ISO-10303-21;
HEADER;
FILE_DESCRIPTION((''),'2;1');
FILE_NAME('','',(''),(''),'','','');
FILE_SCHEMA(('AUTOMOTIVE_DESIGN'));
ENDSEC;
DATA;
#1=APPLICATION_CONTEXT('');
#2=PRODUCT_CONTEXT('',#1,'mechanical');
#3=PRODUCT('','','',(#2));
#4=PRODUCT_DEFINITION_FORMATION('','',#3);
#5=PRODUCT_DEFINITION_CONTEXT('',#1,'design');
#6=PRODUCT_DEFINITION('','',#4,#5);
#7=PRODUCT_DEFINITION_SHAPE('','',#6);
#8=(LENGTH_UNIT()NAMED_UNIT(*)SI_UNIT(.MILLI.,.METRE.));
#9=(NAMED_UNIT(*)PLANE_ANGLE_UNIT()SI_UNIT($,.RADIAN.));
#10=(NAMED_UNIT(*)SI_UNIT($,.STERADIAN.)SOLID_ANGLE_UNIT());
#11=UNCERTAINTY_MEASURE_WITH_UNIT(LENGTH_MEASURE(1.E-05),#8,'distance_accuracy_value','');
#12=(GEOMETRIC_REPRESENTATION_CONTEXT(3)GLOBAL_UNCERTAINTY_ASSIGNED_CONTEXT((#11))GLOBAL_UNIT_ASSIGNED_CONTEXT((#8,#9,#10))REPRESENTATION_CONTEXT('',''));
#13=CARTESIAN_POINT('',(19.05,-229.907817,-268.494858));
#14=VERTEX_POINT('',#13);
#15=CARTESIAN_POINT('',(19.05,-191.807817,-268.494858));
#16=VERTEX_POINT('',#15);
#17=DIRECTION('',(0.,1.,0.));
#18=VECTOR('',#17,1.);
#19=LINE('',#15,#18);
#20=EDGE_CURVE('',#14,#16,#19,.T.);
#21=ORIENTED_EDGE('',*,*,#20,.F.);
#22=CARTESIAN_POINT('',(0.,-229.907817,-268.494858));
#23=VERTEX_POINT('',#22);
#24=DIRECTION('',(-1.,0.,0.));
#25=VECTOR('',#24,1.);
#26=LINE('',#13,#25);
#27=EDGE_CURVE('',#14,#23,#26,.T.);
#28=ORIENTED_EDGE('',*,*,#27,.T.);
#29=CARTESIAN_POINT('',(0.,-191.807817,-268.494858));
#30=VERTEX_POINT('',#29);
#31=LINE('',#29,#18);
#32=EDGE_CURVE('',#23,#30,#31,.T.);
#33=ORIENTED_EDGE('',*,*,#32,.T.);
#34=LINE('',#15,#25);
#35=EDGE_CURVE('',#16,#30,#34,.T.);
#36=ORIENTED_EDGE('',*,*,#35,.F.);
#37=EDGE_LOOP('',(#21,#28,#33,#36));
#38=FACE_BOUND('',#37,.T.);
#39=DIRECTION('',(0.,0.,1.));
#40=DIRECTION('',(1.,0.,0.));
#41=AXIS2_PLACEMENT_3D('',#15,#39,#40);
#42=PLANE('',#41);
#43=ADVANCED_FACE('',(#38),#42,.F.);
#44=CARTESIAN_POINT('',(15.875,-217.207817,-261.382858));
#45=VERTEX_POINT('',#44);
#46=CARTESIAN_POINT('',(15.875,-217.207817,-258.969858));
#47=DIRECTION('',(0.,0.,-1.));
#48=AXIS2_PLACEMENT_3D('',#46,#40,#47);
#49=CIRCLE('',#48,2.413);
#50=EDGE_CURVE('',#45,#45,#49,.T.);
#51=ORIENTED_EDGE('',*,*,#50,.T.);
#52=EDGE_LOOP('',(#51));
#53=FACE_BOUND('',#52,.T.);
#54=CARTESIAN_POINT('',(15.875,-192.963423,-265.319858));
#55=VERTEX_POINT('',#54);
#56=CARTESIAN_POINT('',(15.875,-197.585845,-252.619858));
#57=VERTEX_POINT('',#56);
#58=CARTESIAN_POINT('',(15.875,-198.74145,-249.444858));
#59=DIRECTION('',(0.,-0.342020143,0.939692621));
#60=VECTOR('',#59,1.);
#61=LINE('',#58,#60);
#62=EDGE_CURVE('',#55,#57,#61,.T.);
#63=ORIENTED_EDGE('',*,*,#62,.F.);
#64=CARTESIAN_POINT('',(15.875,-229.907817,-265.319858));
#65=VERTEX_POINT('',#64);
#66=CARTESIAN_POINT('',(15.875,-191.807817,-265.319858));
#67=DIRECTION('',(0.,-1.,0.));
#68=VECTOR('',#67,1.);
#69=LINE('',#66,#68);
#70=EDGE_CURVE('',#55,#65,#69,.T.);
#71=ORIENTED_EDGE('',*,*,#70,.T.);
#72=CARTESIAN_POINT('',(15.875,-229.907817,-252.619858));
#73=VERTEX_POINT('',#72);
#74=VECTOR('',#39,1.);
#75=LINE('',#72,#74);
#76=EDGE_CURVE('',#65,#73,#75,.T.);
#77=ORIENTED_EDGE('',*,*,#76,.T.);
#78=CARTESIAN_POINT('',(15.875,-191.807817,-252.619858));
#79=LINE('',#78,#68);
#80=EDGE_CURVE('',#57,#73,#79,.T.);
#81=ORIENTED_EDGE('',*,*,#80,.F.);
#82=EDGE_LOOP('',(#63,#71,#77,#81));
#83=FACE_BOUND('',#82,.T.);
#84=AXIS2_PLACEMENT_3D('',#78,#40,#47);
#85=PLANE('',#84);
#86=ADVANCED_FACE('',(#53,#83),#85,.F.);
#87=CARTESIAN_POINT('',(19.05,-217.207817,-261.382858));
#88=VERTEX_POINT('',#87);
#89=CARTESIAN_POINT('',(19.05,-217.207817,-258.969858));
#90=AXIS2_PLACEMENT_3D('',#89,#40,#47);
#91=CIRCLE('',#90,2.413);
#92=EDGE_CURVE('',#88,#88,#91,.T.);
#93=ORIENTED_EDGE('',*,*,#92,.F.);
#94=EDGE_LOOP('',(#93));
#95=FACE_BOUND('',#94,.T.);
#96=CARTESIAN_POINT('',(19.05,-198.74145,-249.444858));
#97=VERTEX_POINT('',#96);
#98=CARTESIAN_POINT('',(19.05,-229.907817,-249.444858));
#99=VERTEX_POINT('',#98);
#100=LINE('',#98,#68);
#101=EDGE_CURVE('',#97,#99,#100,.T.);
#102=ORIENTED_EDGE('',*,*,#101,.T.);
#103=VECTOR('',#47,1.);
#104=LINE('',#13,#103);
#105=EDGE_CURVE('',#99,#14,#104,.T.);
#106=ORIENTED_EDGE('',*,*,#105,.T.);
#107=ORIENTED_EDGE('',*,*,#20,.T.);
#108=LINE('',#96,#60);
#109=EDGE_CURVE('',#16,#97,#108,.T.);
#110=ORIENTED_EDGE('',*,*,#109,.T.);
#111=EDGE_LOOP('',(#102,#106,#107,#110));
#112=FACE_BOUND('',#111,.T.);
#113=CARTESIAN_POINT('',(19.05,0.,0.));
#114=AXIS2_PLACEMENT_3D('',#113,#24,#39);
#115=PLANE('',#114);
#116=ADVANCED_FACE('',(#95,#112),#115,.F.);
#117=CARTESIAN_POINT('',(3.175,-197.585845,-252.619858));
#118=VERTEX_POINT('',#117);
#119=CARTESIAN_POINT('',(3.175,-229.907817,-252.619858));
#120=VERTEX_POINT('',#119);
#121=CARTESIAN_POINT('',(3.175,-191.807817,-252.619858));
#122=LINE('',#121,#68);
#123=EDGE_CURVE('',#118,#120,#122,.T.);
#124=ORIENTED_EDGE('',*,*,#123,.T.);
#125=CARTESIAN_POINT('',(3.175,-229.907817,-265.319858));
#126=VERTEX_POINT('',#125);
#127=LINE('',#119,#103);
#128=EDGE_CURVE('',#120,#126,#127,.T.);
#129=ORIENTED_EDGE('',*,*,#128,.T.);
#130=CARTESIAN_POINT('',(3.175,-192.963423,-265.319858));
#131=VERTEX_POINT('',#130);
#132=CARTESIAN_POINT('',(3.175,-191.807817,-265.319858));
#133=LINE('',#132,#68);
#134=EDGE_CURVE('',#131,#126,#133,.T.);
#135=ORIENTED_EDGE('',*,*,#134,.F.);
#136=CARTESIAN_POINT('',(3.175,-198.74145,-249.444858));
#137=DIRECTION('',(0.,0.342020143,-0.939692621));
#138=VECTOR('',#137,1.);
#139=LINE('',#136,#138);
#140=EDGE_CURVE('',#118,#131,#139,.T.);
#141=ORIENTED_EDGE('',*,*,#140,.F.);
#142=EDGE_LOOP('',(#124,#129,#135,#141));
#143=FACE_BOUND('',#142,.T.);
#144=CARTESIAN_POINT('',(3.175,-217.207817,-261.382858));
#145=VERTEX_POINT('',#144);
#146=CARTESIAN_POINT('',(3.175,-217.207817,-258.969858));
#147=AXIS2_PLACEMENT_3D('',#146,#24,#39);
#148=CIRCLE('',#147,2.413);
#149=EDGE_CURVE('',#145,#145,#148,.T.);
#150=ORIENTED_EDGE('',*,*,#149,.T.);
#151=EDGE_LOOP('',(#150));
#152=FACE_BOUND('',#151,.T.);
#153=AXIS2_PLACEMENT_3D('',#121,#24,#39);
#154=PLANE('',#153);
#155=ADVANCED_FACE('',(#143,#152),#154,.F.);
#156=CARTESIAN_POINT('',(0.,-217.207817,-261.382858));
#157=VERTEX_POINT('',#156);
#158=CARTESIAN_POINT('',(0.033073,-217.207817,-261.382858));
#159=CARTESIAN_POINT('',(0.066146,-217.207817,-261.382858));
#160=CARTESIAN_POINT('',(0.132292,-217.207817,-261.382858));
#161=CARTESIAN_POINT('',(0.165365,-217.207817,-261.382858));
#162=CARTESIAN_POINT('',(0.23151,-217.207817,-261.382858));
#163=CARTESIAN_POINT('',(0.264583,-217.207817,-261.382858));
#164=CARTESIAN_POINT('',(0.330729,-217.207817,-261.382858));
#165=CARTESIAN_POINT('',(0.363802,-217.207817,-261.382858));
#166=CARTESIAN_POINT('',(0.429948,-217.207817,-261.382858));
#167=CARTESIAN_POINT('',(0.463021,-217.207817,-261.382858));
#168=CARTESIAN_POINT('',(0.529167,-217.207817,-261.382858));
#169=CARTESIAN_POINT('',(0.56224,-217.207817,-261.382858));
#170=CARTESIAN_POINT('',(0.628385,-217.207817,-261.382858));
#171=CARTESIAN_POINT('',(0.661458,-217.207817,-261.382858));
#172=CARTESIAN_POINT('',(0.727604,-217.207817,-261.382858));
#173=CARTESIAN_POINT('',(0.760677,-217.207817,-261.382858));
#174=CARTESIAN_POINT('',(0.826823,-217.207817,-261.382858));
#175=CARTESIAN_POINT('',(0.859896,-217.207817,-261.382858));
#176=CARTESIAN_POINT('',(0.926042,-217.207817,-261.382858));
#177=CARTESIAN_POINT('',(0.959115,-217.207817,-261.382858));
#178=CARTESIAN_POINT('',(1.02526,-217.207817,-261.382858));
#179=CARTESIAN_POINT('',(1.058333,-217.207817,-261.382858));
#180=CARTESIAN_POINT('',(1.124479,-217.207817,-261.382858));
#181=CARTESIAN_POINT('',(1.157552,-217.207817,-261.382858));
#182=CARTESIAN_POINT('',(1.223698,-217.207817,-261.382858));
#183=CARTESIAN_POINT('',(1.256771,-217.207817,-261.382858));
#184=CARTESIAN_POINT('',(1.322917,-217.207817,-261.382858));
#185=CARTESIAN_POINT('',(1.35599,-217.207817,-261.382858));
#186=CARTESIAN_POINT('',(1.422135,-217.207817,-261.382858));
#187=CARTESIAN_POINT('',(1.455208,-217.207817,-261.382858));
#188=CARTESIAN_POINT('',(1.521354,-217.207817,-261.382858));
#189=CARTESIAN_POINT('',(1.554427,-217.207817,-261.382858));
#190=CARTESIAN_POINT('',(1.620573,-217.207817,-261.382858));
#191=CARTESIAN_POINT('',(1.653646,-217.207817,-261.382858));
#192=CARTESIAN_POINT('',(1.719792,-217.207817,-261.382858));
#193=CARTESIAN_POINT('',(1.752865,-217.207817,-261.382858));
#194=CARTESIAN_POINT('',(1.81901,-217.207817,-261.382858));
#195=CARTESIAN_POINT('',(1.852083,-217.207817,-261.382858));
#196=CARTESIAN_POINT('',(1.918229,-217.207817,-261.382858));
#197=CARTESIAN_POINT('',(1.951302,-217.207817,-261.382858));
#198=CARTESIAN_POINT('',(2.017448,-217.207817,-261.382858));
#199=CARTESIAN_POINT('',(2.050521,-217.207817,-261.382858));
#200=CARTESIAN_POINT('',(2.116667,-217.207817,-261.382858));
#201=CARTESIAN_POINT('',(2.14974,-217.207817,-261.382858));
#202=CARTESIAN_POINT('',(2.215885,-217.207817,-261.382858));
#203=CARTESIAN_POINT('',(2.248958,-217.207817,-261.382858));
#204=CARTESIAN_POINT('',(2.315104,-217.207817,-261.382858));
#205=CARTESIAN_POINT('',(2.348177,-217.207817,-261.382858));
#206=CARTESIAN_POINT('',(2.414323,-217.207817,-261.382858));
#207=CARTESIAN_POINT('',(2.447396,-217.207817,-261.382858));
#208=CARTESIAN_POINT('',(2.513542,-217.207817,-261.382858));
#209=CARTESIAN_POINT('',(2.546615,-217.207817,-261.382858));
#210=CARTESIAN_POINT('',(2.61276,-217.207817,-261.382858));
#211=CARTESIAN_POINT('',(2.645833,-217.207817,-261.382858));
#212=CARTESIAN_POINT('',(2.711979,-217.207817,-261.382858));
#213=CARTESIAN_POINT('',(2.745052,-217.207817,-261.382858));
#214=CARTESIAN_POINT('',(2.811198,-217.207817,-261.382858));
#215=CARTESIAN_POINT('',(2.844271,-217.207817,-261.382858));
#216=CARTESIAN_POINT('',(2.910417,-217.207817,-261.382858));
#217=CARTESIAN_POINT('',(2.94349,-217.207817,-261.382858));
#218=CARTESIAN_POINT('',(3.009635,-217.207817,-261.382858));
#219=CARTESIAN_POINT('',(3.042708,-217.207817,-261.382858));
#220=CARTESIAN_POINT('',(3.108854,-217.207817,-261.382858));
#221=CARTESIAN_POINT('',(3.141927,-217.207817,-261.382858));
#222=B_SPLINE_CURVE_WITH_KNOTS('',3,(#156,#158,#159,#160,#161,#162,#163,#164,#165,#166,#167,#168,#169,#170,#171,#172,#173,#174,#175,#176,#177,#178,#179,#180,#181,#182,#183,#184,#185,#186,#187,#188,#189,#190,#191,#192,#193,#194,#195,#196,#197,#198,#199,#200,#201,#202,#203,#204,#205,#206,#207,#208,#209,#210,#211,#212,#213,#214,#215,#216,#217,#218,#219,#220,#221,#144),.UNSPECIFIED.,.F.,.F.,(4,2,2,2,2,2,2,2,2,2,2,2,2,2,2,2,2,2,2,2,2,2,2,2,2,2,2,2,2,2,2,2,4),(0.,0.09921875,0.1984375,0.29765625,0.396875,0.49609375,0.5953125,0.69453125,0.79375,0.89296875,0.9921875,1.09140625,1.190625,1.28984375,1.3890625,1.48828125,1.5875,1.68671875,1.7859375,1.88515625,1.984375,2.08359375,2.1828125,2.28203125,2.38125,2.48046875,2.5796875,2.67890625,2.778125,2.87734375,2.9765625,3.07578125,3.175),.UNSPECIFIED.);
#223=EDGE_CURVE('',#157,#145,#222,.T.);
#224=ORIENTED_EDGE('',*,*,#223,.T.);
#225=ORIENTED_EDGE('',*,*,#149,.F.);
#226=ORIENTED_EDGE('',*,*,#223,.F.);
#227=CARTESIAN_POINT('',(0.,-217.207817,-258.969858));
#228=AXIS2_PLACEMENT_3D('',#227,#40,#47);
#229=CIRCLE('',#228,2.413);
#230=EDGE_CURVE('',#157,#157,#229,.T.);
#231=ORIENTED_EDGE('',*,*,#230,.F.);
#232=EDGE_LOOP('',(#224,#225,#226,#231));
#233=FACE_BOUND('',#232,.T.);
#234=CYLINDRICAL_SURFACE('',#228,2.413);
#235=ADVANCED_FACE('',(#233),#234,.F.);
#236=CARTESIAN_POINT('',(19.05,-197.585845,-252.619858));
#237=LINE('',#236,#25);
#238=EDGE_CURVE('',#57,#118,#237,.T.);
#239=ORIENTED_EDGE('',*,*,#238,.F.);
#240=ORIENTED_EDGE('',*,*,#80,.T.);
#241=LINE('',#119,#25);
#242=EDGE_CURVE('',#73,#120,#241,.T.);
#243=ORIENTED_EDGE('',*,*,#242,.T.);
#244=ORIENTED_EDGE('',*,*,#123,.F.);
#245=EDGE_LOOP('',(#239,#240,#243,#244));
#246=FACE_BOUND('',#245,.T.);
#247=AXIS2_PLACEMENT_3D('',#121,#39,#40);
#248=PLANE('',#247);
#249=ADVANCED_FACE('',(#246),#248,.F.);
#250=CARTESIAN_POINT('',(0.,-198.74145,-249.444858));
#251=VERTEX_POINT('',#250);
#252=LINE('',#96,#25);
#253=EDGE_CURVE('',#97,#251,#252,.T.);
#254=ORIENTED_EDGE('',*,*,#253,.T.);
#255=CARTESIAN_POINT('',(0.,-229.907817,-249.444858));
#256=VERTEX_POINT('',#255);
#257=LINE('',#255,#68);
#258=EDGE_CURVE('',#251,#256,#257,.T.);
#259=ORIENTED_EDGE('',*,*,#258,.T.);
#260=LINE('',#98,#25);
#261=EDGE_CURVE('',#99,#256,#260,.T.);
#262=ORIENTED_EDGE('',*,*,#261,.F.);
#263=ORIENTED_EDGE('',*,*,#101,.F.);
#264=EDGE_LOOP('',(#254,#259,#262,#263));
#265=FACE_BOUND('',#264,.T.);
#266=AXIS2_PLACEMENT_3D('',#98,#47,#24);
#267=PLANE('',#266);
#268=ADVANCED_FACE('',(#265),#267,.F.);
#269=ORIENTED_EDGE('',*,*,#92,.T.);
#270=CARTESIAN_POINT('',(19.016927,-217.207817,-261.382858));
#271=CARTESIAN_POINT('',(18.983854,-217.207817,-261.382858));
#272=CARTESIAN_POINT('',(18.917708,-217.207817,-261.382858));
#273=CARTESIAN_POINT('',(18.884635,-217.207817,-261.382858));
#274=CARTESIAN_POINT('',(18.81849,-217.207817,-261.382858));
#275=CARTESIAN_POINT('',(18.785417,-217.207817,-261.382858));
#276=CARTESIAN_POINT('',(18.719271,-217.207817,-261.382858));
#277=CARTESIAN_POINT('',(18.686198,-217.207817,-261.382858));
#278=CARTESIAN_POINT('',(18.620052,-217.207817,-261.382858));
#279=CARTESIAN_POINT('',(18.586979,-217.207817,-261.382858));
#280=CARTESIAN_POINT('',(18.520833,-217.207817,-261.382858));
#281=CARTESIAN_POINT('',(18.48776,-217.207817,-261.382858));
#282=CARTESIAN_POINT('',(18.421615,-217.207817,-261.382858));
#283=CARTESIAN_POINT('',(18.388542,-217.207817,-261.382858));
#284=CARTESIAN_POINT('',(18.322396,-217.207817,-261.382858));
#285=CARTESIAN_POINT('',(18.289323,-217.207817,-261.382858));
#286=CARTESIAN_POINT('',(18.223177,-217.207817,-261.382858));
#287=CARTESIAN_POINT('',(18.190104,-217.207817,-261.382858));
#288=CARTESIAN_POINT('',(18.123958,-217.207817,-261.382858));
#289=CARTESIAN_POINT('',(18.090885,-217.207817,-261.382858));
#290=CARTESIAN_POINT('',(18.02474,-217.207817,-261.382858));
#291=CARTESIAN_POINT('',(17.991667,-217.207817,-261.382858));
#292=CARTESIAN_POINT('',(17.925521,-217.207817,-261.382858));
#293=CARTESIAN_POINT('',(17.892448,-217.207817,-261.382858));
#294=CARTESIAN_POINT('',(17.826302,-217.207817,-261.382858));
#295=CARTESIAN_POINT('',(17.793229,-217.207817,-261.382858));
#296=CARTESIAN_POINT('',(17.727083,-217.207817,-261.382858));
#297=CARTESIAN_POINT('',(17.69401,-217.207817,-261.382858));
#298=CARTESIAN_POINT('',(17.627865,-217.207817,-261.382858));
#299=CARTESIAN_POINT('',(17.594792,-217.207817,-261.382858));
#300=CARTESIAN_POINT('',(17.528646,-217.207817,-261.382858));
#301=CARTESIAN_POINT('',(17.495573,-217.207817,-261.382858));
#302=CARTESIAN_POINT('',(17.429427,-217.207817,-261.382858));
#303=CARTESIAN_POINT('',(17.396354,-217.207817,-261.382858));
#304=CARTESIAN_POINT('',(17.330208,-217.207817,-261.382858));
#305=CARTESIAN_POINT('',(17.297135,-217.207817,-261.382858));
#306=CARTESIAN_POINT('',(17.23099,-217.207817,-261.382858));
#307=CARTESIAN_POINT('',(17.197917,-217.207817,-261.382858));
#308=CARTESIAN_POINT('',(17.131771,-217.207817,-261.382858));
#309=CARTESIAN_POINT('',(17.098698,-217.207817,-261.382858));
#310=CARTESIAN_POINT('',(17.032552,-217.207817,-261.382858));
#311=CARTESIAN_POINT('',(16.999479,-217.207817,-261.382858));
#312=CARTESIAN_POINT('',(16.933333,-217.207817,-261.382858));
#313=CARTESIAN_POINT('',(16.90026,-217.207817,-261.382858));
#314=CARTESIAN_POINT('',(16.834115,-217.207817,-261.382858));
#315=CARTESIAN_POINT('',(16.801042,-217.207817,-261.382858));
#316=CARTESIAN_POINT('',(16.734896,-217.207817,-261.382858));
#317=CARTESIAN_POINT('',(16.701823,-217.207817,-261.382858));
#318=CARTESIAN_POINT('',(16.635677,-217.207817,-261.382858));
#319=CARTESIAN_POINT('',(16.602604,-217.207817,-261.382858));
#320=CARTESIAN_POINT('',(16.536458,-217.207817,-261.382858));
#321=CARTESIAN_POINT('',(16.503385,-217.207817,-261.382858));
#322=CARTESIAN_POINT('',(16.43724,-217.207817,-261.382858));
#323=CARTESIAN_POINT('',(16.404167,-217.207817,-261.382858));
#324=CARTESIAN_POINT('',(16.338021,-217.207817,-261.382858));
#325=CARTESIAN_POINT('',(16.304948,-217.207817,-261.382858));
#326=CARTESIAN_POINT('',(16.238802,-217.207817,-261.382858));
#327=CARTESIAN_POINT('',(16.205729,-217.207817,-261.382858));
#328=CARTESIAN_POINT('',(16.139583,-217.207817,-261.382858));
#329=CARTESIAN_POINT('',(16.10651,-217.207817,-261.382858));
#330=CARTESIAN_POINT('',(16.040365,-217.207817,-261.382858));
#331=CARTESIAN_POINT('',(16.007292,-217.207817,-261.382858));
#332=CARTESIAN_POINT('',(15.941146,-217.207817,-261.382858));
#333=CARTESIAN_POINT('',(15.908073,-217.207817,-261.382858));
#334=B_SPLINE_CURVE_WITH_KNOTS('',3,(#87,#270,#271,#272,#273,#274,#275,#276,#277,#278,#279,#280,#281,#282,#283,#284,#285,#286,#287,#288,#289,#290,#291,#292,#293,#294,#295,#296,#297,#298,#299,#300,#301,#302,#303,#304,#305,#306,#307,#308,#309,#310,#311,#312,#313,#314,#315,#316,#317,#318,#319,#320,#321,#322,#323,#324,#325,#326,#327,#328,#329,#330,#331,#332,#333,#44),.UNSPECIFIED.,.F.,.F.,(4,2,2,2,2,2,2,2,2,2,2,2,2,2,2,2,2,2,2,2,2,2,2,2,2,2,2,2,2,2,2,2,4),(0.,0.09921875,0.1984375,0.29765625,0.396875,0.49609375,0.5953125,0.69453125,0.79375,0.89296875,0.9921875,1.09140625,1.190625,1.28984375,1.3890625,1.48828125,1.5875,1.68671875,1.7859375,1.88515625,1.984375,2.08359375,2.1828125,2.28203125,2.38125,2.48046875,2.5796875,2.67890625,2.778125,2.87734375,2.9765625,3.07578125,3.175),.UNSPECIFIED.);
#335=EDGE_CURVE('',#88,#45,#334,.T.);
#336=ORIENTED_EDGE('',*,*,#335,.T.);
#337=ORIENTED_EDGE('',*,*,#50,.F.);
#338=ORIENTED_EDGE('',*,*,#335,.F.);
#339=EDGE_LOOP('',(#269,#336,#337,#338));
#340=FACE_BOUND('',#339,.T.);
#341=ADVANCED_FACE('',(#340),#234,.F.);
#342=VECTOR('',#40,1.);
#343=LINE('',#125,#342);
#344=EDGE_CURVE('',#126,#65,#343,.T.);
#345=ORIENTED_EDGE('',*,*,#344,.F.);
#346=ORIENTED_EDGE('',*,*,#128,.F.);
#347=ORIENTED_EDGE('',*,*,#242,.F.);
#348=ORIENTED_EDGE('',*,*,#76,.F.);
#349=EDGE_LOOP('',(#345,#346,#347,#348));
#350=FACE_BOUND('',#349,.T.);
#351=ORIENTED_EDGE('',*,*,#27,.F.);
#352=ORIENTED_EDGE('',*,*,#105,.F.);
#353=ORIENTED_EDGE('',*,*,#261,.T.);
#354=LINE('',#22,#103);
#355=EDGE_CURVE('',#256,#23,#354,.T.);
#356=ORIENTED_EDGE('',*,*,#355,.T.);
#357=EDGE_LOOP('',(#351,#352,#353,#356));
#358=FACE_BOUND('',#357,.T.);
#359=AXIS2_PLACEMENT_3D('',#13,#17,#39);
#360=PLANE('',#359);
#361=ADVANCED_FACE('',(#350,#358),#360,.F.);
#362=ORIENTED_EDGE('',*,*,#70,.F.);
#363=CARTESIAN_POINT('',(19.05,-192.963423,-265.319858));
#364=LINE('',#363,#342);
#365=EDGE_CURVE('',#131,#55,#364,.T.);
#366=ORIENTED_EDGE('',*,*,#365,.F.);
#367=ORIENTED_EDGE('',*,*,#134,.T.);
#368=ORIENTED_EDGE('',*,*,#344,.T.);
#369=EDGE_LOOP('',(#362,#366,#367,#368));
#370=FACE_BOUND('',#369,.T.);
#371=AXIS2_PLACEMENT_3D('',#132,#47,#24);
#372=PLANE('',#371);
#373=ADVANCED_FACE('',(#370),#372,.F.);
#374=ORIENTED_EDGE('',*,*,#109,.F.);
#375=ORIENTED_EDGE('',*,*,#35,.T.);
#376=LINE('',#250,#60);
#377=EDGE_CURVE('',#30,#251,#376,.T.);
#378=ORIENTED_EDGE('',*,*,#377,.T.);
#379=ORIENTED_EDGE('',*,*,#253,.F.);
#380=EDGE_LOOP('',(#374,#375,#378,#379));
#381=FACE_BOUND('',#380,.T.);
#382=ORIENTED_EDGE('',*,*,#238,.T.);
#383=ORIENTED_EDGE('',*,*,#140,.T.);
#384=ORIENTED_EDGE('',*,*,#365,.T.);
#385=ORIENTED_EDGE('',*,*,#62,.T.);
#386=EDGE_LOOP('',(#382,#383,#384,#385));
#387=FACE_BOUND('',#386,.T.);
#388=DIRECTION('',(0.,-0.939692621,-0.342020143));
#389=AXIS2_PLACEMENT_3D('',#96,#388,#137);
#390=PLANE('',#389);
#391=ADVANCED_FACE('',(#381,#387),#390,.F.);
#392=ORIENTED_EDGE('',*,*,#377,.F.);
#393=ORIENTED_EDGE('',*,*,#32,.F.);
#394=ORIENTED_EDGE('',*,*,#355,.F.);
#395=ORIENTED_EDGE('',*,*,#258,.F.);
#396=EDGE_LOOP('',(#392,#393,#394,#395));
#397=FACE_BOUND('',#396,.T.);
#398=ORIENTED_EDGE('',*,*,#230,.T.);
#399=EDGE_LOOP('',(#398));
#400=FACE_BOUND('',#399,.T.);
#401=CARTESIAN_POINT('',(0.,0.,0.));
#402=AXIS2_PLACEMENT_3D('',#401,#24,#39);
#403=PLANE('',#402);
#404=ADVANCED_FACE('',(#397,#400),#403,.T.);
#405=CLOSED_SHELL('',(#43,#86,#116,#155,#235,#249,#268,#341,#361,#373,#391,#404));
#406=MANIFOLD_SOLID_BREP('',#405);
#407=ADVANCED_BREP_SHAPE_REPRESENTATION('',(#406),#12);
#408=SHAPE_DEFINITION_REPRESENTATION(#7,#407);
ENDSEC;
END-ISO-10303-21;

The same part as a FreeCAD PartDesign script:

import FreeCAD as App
import Part
import Sketcher
from FreeCAD import Vector
Q = App.Units.Quantity


def add_polygon(sketch, points):
    """Adds a closed chain of lines whose ends are joined by coincident constraints."""
    first, n = sketch.GeometryCount, len(points)
    for a, b in zip(points, points[1:] + points[:1]):
        sketch.addGeometry(Part.LineSegment(App.Vector(*a, 0), App.Vector(*b, 0)), False)
    for i in range(n):
        sketch.addConstraint(Sketcher.Constraint("Coincident", first + i, 2, first + (i + 1) % n, 1))

doc = App.newDocument("Part")
params = doc.addObject("Spreadsheet::Sheet", "Params")
for row, (alias, value) in enumerate([
    ("sketch1_width", "1.5 in"),
    ("sketch1_height", "0.75 in"),
    ("pad1_length", "0.75 in"),
    ("sketch2_width", "0.5 in"),
    ("sketch3_diameter", "0.19 in"),
], start=1):
    params.set(f"A{row}", alias)
    params.set(f"B{row}", "=" + value)
    params.setAlias(f"B{row}", alias)

body = doc.addObject("PartDesign::Body", "Body")

# Sketch on YZ plane
sketch1 = body.newObject("Sketcher::SketchObject", "Sketch")
sketch1.AttachmentSupport = (doc.getObject("YZ_Plane"), [""])
sketch1.MapMode = "FlatFace"
add_polygon(sketch1, [(-230, -268), (-192, -268), (-199, -249), (-230, -249)])  # lines 0-3
sketch1.addConstraint([
    Sketcher.Constraint("Horizontal", 0),
    Sketcher.Constraint("Horizontal", 2),
    Sketcher.Constraint("Vertical", 3),
    Sketcher.Constraint("DistanceX", 0, 1, 0, 2, Q("1.5 in")),
    Sketcher.Constraint("Angle", 1, Q("110 deg")),
    Sketcher.Constraint("DistanceY", 3, 2, 3, 1, Q("0.75 in")),
    Sketcher.Constraint("DistanceY", 0, 2, -1, 1, 268.494858),
    Sketcher.Constraint("DistanceX", 1, 2, -1, 1, 198.74145),
])
sketch1.setExpression("Constraints[7]", "Params.sketch1_width")
sketch1.setExpression("Constraints[9]", "Params.sketch1_height")
pad1 = body.newObject("PartDesign::Pad", "Pad")
pad1.Profile = sketch1
pad1.setExpression("Length", "Params.pad1_length")

# Sketch on XZ plane
sketch2 = body.newObject("Sketcher::SketchObject", "Sketch001")
sketch2.AttachmentSupport = (doc.getObject("XZ_Plane"), [""])
sketch2.MapMode = "FlatFace"
sketch2.AttachmentOffset = App.Placement(Vector(0, 0, 229.907817), App.Rotation())
add_polygon(sketch2, [(3, -253), (3, -265), (16, -265), (16, -253)])  # lines 0-3
sketch2.addConstraint([
    Sketcher.Constraint("Vertical", 0),
    Sketcher.Constraint("Horizontal", 1),
    Sketcher.Constraint("Vertical", 2),
    Sketcher.Constraint("Horizontal", 3),
    Sketcher.Constraint("Equal", 3, 0),
    Sketcher.Constraint("DistanceX", 1, 1, 1, 2, Q("0.5 in")),
    Sketcher.Constraint("DistanceX", -1, 1, 0, 2, Q("0.125 in")),
    Sketcher.Constraint("DistanceY", 0, 2, -1, 1, 265.319858),
])
sketch2.setExpression("Constraints[9]", "Params.sketch2_width")
pocket1 = body.newObject("PartDesign::Pocket", "Pocket")
pocket1.Profile = sketch2
pocket1.Type = "ThroughAll"

# Sketch on YZ plane
sketch3 = body.newObject("Sketcher::SketchObject", "Sketch002")
sketch3.AttachmentSupport = (doc.getObject("YZ_Plane"), [""])
sketch3.MapMode = "FlatFace"
sketch3.AttachmentOffset = App.Placement(Vector(0, 0, 0.75 * 25.4), App.Rotation())
sketch3.addGeometry(Part.Circle(Vector(-217.2, -259, 0), Vector(0, 0, 1), 2.4), False)
sketch3.addConstraint([
    Sketcher.Constraint("Diameter", 0, Q("0.19 in")),
    Sketcher.Constraint("DistanceY", 0, 3, -1, 1, 258.969858),
    Sketcher.Constraint("DistanceX", 0, 3, -1, 1, 217.207817),
])
sketch3.setExpression("Constraints[0]", "Params.sketch3_diameter")
pocket2 = body.newObject("PartDesign::Pocket", "Pocket001")
pocket2.Profile = sketch3
pocket2.Type = "ThroughAll"

doc.recompute()
